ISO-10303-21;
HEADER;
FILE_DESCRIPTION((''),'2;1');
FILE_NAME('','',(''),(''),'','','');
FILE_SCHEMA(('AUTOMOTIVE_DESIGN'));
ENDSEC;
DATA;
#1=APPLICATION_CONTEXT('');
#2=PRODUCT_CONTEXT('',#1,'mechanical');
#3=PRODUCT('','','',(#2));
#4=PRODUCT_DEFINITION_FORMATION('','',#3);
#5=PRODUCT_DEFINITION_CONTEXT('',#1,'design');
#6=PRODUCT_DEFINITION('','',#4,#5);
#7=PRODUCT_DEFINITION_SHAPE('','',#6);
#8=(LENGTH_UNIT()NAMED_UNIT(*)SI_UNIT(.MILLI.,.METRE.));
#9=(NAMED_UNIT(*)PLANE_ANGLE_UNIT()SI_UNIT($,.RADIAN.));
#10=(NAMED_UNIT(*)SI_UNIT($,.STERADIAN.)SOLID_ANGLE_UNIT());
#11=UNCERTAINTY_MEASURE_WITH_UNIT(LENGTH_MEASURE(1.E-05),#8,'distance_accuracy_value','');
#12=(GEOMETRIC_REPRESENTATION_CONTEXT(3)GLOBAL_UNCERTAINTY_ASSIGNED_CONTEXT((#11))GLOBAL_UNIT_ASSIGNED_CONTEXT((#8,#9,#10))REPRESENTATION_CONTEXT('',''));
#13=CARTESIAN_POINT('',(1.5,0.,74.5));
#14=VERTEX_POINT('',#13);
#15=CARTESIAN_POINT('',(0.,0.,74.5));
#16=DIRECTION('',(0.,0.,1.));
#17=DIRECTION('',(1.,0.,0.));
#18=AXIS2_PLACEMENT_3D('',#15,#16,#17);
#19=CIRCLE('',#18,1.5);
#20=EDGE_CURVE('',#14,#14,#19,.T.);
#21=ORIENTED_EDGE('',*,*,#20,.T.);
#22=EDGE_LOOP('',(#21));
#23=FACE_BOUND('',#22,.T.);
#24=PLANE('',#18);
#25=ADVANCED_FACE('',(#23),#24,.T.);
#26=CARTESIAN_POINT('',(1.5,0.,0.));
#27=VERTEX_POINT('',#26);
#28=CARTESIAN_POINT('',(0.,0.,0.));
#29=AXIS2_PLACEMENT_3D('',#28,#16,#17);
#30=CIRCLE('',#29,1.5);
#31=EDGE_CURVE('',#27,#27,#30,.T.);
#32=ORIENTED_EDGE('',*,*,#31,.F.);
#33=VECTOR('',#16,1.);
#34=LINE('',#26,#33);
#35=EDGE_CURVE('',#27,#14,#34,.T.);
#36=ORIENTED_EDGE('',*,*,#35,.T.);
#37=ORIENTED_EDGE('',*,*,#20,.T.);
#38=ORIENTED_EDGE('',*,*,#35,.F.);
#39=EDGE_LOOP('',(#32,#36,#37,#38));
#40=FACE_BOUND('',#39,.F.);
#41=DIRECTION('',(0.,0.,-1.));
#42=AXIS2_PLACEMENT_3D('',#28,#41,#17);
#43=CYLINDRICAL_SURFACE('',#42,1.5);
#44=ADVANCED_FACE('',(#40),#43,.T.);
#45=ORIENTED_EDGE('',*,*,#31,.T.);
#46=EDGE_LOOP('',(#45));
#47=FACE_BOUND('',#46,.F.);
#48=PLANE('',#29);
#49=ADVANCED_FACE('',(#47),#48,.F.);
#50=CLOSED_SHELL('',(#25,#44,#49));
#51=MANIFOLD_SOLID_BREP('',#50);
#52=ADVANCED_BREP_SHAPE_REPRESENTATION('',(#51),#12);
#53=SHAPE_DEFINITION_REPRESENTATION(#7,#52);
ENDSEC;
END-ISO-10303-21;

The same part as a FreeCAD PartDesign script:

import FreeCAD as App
import Part
import Sketcher
from FreeCAD import Vector
Q = App.Units.Quantity

doc = App.newDocument("Part")
body = doc.addObject("PartDesign::Body", "Body")

# Sketch on XY plane
sketch1 = body.newObject("Sketcher::SketchObject", "Sketch")
sketch1.AttachmentSupport = (doc.getObject("XY_Plane"), [""])
sketch1.MapMode = "FlatFace"
sketch1.addGeometry(Part.Circle(Vector(0, 0, 0), Vector(0, 0, 1), 1.5), False)
sketch1.addConstraint([
    Sketcher.Constraint("Coincident", 0, 3, -1, 1),
    Sketcher.Constraint("Diameter", 0, Q("3 mm")),
])
pad1 = body.newObject("PartDesign::Pad", "Pad")
pad1.Profile = sketch1
pad1.Length = 74.5

doc.recompute()
